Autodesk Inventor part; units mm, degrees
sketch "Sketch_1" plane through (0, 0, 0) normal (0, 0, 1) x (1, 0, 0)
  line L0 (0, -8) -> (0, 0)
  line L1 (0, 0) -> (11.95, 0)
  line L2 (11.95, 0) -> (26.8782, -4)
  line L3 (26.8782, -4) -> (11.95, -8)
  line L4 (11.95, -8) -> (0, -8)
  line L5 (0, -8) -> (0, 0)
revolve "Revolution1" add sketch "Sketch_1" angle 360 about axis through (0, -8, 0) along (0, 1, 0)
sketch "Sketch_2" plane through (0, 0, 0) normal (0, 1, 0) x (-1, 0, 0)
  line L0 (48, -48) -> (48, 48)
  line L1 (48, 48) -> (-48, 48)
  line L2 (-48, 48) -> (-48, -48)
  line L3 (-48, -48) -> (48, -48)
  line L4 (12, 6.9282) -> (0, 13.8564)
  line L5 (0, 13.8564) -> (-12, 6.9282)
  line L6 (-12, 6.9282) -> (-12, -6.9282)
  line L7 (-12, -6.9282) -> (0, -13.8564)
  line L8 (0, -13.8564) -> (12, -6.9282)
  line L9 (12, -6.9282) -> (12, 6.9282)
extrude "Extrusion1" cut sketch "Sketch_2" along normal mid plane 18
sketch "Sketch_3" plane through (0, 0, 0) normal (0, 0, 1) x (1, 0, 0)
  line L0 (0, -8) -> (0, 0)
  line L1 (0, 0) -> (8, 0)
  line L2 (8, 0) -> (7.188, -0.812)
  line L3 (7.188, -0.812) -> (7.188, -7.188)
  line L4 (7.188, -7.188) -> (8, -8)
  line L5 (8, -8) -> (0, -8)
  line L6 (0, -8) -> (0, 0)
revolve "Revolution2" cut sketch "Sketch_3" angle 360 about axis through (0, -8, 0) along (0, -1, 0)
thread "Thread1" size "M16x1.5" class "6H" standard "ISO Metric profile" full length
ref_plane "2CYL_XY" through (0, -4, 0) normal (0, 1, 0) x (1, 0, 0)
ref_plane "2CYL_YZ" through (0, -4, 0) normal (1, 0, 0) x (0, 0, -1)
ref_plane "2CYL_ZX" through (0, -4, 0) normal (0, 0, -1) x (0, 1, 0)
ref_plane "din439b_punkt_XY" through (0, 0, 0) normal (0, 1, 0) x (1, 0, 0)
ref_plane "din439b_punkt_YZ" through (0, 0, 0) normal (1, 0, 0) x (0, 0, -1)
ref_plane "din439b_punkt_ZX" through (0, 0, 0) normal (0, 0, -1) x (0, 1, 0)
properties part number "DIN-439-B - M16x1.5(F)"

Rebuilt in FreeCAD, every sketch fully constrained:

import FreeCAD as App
import Part
import Sketcher

V = App.Vector
Q = App.Units.Quantity

doc = App.newDocument("Part")
params = doc.addObject("Spreadsheet::Sheet", "Params")
for row, (alias, value) in enumerate([
    ("sketch1_height", "8 mm"),
    ("sketch1_width", "11.95 mm"),
    ("revolution_angle", "360 deg"),
    ("sketch2_width", "96 mm"),
    ("pocket1_length", "18 mm"),
    ("sketch3_width", "8 mm"),
    ("groove_angle", "360 deg"),
], start=1):
    params.set(f"A{row}", alias)
    params.set(f"B{row}", "=" + value)
    params.setAlias(f"B{row}", alias)

body = doc.addObject("PartDesign::Body", "Body")

sketch1 = body.newObject("Sketcher::SketchObject", "Sketch")
sketch1.AttachmentSupport = (doc.getObject("XY_Plane"), [""])
sketch1.MapMode = "FlatFace"
sketch1.addGeometry(Part.LineSegment(V(0, 0, 0), V(0, -8, 0)), False)
sketch1.addGeometry(Part.LineSegment(V(0, -8, 0), V(11.95, -8, 0)), False)
sketch1.addGeometry(Part.LineSegment(V(11.95, -8, 0), V(26.8782, -4, 0)), False)
sketch1.addGeometry(Part.LineSegment(V(26.8782, -4, 0), V(11.95, 0, 0)), False)
sketch1.addGeometry(Part.LineSegment(V(11.95, 0, 0), V(0, 0, 0)), False)
sketch1.addConstraint(Sketcher.Constraint("Coincident", 0, 2, 1, 1))
sketch1.addConstraint(Sketcher.Constraint("Coincident", 1, 2, 2, 1))
sketch1.addConstraint(Sketcher.Constraint("Coincident", 2, 2, 3, 1))
sketch1.addConstraint(Sketcher.Constraint("Coincident", 3, 2, 4, 1))
sketch1.addConstraint(Sketcher.Constraint("Coincident", 4, 2, 0, 1))
sketch1.addConstraint(Sketcher.Constraint("Vertical", 0))
sketch1.addConstraint(Sketcher.Constraint("Horizontal", 1))
sketch1.addConstraint(Sketcher.Constraint("Horizontal", 4))
sketch1.addConstraint(Sketcher.Constraint("Coincident", 4, 2, -1, 1))
sketch1.addConstraint(Sketcher.Constraint("Vertical", 1, 2, 3, 2))
sketch1.addConstraint(Sketcher.Constraint("Equal", 2, 3))
sketch1.addConstraint(Sketcher.Constraint("DistanceY", 0, 2, 0, 1, 8.0))
sketch1.addConstraint(Sketcher.Constraint("Angle", 2, Q("15 deg")))
sketch1.addConstraint(Sketcher.Constraint("DistanceX", 1, 1, 1, 2, 11.95))
sketch1.setExpression("Constraints[11]", "Params.sketch1_height")
sketch1.setExpression("Constraints[13]", "Params.sketch1_width")
revolution = body.newObject("PartDesign::Revolution", "Revolution")
revolution.Profile = sketch1
revolution.ReferenceAxis = (sketch1, ["V_Axis"])
revolution.setExpression("Angle", "Params.revolution_angle")

sketch2 = body.newObject("Sketcher::SketchObject", "Sketch001")
sketch2.AttachmentSupport = (doc.getObject("XZ_Plane"), [""])
sketch2.MapMode = "FlatFace"
sketch2.addGeometry(Part.LineSegment(V(48, -48, 0), V(-48, -48, 0)), False)
sketch2.addGeometry(Part.LineSegment(V(-48, -48, 0), V(-48, 48, 0)), False)
sketch2.addGeometry(Part.LineSegment(V(-48, 48, 0), V(48, 48, 0)), False)
sketch2.addGeometry(Part.LineSegment(V(48, 48, 0), V(48, -48, 0)), False)
sketch2.addGeometry(Part.LineSegment(V(0, 13.8564, 0), V(-12, 6.9282, 0)), False)
sketch2.addGeometry(Part.LineSegment(V(-12, 6.9282, 0), V(-12, -6.9282, 0)), False)
sketch2.addGeometry(Part.LineSegment(V(-12, -6.9282, 0), V(0, -13.8564, 0)), False)
sketch2.addGeometry(Part.LineSegment(V(0, -13.8564, 0), V(12, -6.9282, 0)), False)
sketch2.addGeometry(Part.LineSegment(V(12, -6.9282, 0), V(12, 6.9282, 0)), False)
sketch2.addGeometry(Part.LineSegment(V(12, 6.9282, 0), V(0, 13.8564, 0)), False)
sketch2.addConstraint(Sketcher.Constraint("Coincident", 0, 2, 1, 1))
sketch2.addConstraint(Sketcher.Constraint("Coincident", 1, 2, 2, 1))
sketch2.addConstraint(Sketcher.Constraint("Coincident", 2, 2, 3, 1))
sketch2.addConstraint(Sketcher.Constraint("Coincident", 3, 2, 0, 1))
sketch2.addConstraint(Sketcher.Constraint("Coincident", 4, 2, 5, 1))
sketch2.addConstraint(Sketcher.Constraint("Coincident", 5, 2, 6, 1))
sketch2.addConstraint(Sketcher.Constraint("Coincident", 6, 2, 7, 1))
sketch2.addConstraint(Sketcher.Constraint("Coincident", 7, 2, 8, 1))
sketch2.addConstraint(Sketcher.Constraint("Coincident", 8, 2, 9, 1))
sketch2.addConstraint(Sketcher.Constraint("Coincident", 9, 2, 4, 1))
sketch2.addConstraint(Sketcher.Constraint("Horizontal", 0))
sketch2.addConstraint(Sketcher.Constraint("Vertical", 1))
sketch2.addConstraint(Sketcher.Constraint("Horizontal", 2))
sketch2.addConstraint(Sketcher.Constraint("Vertical", 3))
sketch2.addConstraint(Sketcher.Constraint("Vertical", 5))
sketch2.addConstraint(Sketcher.Constraint("Vertical", 8))
sketch2.addConstraint(Sketcher.Constraint("Symmetric", 0, 2, 2, 2, -1, 1))
sketch2.addConstraint(Sketcher.Constraint("Symmetric", 4, 2, 7, 2, -1, 1))
sketch2.addConstraint(Sketcher.Constraint("Symmetric", 6, 2, 9, 2, -1, 1))
sketch2.addConstraint(Sketcher.Constraint("PointOnObject", 6, 2, -2))
sketch2.addConstraint(Sketcher.Constraint("Parallel", 6, 9))
sketch2.addConstraint(Sketcher.Constraint("Horizontal", 5, 2, 7, 2))
sketch2.addConstraint(Sketcher.Constraint("Equal", 2, 1))
sketch2.addConstraint(Sketcher.Constraint("DistanceX", 0, 2, 0, 1, 96.0))
sketch2.addConstraint(Sketcher.Constraint("Angle", 4, Q("-150 deg")))
sketch2.addConstraint(Sketcher.Constraint("DistanceX", 4, 2, -1, 1, 12.0))
sketch2.addConstraint(Sketcher.Constraint("DistanceY", 5, 2, 5, 1, 13.8564))
sketch2.setExpression("Constraints[23]", "Params.sketch2_width")
pocket1 = body.newObject("PartDesign::Pocket", "Pocket")
pocket1.Profile = sketch2
pocket1.setExpression("Length", "Params.pocket1_length")
pocket1.Midplane = True

sketch3 = body.newObject("Sketcher::SketchObject", "Sketch002")
sketch3.AttachmentSupport = (doc.getObject("XY_Plane"), [""])
sketch3.MapMode = "FlatFace"
sketch3.addGeometry(Part.LineSegment(V(0, 0, 0), V(0, -8, 0)), False)
sketch3.addGeometry(Part.LineSegment(V(0, -8, 0), V(8, -8, 0)), False)
sketch3.addGeometry(Part.LineSegment(V(8, -8, 0), V(7.188, -7.188, 0)), False)
sketch3.addGeometry(Part.LineSegment(V(7.188, -7.188, 0), V(7.188, -0.812, 0)), False)
sketch3.addGeometry(Part.LineSegment(V(7.188, -0.812, 0), V(8, 0, 0)), False)
sketch3.addGeometry(Part.LineSegment(V(8, 0, 0), V(0, 0, 0)), False)
sketch3.addConstraint(Sketcher.Constraint("Coincident", 0, 2, 1, 1))
sketch3.addConstraint(Sketcher.Constraint("Coincident", 1, 2, 2, 1))
sketch3.addConstraint(Sketcher.Constraint("Coincident", 2, 2, 3, 1))
sketch3.addConstraint(Sketcher.Constraint("Coincident", 3, 2, 4, 1))
sketch3.addConstraint(Sketcher.Constraint("Coincident", 4, 2, 5, 1))
sketch3.addConstraint(Sketcher.Constraint("Coincident", 5, 2, 0, 1))
sketch3.addConstraint(Sketcher.Constraint("Vertical", 0))
sketch3.addConstraint(Sketcher.Constraint("Horizontal", 1))
sketch3.addConstraint(Sketcher.Constraint("Vertical", 3))
sketch3.addConstraint(Sketcher.Constraint("Horizontal", 5))
sketch3.addConstraint(Sketcher.Constraint("Coincident", 5, 2, -1, 1))
sketch3.addConstraint(Sketcher.Constraint("Perpendicular", 2, 4))
sketch3.addConstraint(Sketcher.Constraint("Vertical", 1, 2, 4, 2))
sketch3.addConstraint(Sketcher.Constraint("Equal", 5, 0))
sketch3.addConstraint(Sketcher.Constraint("Equal", 2, 4))
sketch3.addConstraint(Sketcher.Constraint("DistanceX", 1, 1, 1, 2, 8.0))
sketch3.addConstraint(Sketcher.Constraint("DistanceY", 3, 1, 3, 2, 6.376))
sketch3.setExpression("Constraints[15]", "Params.sketch3_width")
groove = body.newObject("PartDesign::Groove", "Groove")
groove.Profile = sketch3
groove.ReferenceAxis = (sketch3, ["V_Axis"])
groove.setExpression("Angle", "Params.groove_angle")

doc.recompute()
